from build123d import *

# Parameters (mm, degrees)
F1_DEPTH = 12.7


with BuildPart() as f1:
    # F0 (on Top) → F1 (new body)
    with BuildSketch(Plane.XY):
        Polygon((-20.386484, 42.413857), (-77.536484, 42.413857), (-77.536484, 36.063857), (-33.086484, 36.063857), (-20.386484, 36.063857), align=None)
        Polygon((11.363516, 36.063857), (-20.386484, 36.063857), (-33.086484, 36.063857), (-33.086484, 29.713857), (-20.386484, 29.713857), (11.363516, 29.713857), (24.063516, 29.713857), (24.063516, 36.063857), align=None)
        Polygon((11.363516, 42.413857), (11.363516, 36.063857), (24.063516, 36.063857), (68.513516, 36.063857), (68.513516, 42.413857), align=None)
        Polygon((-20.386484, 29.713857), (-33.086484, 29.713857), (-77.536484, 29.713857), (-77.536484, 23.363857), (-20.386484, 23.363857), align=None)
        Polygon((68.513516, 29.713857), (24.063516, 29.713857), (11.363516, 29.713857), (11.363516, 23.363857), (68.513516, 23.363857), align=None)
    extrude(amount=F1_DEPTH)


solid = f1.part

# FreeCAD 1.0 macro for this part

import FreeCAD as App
import Part
import Sketcher
from FreeCAD import Vector
Q = App.Units.Quantity


def add_polygon(sketch, points):
    """Adds a closed chain of lines whose ends are joined by coincident constraints."""
    first, n = sketch.GeometryCount, len(points)
    for a, b in zip(points, points[1:] + points[:1]):
        sketch.addGeometry(Part.LineSegment(App.Vector(*a, 0), App.Vector(*b, 0)), False)
    for i in range(n):
        sketch.addConstraint(Sketcher.Constraint("Coincident", first + i, 2, first + (i + 1) % n, 1))

doc = App.newDocument("Part")
params = doc.addObject("Spreadsheet::Sheet", "Params")
for row, (alias, value) in enumerate([
    ("sketch1_width", "2.25 in"),
    ("sketch1_width2", "1.75 in"),
    ("sketch1_height", "0.25 in"),
    ("pad1_length", "0.5 in"),
], start=1):
    params.set(f"A{row}", alias)
    params.set(f"B{row}", "=" + value)
    params.setAlias(f"B{row}", alias)

body = doc.addObject("PartDesign::Body", "Body")

sketch1 = body.newObject("Sketcher::SketchObject", "Sketch")
sketch1.AttachmentSupport = (doc.getObject("XY_Plane"), [""])
sketch1.MapMode = "FlatFace"
add_polygon(sketch1, [(-20, 42), (-78, 42), (-78, 36), (-33, 36), (-33, 30), (-78, 30), (-78, 23), (-20, 23), (-20, 30), (11, 30), (11, 23), (69, 23), (69, 30), (24, 30), (24, 36), (69, 36), (69, 42), (11, 42), (11, 36), (-20, 36)])
sketch1.addConstraint([
    Sketcher.Constraint("Horizontal", 0),
    Sketcher.Constraint("Vertical", 1),
    Sketcher.Constraint("Horizontal", 2),
    Sketcher.Constraint("Vertical", 3),
    Sketcher.Constraint("Horizontal", 4),
    Sketcher.Constraint("Vertical", 5),
    Sketcher.Constraint("Horizontal", 6),
    Sketcher.Constraint("Vertical", 7),
    Sketcher.Constraint("Horizontal", 8),
    Sketcher.Constraint("Vertical", 9),
    Sketcher.Constraint("Horizontal", 10),
    Sketcher.Constraint("Vertical", 11),
    Sketcher.Constraint("Horizontal", 12),
    Sketcher.Constraint("Vertical", 13),
    Sketcher.Constraint("Horizontal", 14),
    Sketcher.Constraint("Vertical", 15),
    Sketcher.Constraint("Horizontal", 16),
    Sketcher.Constraint("Vertical", 17),
    Sketcher.Constraint("Horizontal", 18),
    Sketcher.Constraint("Vertical", 19),
    Sketcher.Constraint("Horizontal", 4, 2, 7, 2),
    Sketcher.Constraint("Horizontal", 6, 2, 9, 2),
    Sketcher.Constraint("Horizontal", 8, 2, 11, 2),
    Sketcher.Constraint("Horizontal", 2, 2, 13, 2),
    Sketcher.Constraint("Horizontal", 0, 2, 15, 2),
    Sketcher.Constraint("Horizontal", 14, 2, 17, 2),
    Sketcher.Constraint("Vertical", 1, 2, 4, 2),
    Sketcher.Constraint("Vertical", 11, 2, 14, 2),
    Sketcher.Constraint("Vertical", 9, 2, 16, 2),
    Sketcher.Constraint("Vertical", 7, 2, 18, 2),
    Sketcher.Constraint("Equal", 6, 10),
    Sketcher.Constraint("Equal", 4, 12),
    Sketcher.Constraint("Equal", 1, 3),
    Sketcher.Constraint("Equal", 3, 5),
    Sketcher.Constraint("DistanceX", 3, 2, 10, 2, Q("4 in")),
    Sketcher.Constraint("DistanceX", 0, 2, 0, 1, Q("2.25 in")),
    Sketcher.Constraint("DistanceX", 2, 1, 2, 2, Q("1.75 in")),
    Sketcher.Constraint("DistanceY", 1, 2, 1, 1, Q("0.25 in")),
    Sketcher.Constraint("DistanceX", 0, 2, -1, 1, Q("77.536484 mm")),
    Sketcher.Constraint("DistanceY", -1, 1, 0, 2, Q("42.413857 mm")),
])
sketch1.setExpression("Constraints[55]", "Params.sketch1_width")
sketch1.setExpression("Constraints[56]", "Params.sketch1_width2")
sketch1.setExpression("Constraints[57]", "Params.sketch1_height")
pad1 = body.newObject("PartDesign::Pad", "Pad")
pad1.Profile = sketch1
pad1.setExpression("Length", "Params.pad1_length")

doc.recompute()
